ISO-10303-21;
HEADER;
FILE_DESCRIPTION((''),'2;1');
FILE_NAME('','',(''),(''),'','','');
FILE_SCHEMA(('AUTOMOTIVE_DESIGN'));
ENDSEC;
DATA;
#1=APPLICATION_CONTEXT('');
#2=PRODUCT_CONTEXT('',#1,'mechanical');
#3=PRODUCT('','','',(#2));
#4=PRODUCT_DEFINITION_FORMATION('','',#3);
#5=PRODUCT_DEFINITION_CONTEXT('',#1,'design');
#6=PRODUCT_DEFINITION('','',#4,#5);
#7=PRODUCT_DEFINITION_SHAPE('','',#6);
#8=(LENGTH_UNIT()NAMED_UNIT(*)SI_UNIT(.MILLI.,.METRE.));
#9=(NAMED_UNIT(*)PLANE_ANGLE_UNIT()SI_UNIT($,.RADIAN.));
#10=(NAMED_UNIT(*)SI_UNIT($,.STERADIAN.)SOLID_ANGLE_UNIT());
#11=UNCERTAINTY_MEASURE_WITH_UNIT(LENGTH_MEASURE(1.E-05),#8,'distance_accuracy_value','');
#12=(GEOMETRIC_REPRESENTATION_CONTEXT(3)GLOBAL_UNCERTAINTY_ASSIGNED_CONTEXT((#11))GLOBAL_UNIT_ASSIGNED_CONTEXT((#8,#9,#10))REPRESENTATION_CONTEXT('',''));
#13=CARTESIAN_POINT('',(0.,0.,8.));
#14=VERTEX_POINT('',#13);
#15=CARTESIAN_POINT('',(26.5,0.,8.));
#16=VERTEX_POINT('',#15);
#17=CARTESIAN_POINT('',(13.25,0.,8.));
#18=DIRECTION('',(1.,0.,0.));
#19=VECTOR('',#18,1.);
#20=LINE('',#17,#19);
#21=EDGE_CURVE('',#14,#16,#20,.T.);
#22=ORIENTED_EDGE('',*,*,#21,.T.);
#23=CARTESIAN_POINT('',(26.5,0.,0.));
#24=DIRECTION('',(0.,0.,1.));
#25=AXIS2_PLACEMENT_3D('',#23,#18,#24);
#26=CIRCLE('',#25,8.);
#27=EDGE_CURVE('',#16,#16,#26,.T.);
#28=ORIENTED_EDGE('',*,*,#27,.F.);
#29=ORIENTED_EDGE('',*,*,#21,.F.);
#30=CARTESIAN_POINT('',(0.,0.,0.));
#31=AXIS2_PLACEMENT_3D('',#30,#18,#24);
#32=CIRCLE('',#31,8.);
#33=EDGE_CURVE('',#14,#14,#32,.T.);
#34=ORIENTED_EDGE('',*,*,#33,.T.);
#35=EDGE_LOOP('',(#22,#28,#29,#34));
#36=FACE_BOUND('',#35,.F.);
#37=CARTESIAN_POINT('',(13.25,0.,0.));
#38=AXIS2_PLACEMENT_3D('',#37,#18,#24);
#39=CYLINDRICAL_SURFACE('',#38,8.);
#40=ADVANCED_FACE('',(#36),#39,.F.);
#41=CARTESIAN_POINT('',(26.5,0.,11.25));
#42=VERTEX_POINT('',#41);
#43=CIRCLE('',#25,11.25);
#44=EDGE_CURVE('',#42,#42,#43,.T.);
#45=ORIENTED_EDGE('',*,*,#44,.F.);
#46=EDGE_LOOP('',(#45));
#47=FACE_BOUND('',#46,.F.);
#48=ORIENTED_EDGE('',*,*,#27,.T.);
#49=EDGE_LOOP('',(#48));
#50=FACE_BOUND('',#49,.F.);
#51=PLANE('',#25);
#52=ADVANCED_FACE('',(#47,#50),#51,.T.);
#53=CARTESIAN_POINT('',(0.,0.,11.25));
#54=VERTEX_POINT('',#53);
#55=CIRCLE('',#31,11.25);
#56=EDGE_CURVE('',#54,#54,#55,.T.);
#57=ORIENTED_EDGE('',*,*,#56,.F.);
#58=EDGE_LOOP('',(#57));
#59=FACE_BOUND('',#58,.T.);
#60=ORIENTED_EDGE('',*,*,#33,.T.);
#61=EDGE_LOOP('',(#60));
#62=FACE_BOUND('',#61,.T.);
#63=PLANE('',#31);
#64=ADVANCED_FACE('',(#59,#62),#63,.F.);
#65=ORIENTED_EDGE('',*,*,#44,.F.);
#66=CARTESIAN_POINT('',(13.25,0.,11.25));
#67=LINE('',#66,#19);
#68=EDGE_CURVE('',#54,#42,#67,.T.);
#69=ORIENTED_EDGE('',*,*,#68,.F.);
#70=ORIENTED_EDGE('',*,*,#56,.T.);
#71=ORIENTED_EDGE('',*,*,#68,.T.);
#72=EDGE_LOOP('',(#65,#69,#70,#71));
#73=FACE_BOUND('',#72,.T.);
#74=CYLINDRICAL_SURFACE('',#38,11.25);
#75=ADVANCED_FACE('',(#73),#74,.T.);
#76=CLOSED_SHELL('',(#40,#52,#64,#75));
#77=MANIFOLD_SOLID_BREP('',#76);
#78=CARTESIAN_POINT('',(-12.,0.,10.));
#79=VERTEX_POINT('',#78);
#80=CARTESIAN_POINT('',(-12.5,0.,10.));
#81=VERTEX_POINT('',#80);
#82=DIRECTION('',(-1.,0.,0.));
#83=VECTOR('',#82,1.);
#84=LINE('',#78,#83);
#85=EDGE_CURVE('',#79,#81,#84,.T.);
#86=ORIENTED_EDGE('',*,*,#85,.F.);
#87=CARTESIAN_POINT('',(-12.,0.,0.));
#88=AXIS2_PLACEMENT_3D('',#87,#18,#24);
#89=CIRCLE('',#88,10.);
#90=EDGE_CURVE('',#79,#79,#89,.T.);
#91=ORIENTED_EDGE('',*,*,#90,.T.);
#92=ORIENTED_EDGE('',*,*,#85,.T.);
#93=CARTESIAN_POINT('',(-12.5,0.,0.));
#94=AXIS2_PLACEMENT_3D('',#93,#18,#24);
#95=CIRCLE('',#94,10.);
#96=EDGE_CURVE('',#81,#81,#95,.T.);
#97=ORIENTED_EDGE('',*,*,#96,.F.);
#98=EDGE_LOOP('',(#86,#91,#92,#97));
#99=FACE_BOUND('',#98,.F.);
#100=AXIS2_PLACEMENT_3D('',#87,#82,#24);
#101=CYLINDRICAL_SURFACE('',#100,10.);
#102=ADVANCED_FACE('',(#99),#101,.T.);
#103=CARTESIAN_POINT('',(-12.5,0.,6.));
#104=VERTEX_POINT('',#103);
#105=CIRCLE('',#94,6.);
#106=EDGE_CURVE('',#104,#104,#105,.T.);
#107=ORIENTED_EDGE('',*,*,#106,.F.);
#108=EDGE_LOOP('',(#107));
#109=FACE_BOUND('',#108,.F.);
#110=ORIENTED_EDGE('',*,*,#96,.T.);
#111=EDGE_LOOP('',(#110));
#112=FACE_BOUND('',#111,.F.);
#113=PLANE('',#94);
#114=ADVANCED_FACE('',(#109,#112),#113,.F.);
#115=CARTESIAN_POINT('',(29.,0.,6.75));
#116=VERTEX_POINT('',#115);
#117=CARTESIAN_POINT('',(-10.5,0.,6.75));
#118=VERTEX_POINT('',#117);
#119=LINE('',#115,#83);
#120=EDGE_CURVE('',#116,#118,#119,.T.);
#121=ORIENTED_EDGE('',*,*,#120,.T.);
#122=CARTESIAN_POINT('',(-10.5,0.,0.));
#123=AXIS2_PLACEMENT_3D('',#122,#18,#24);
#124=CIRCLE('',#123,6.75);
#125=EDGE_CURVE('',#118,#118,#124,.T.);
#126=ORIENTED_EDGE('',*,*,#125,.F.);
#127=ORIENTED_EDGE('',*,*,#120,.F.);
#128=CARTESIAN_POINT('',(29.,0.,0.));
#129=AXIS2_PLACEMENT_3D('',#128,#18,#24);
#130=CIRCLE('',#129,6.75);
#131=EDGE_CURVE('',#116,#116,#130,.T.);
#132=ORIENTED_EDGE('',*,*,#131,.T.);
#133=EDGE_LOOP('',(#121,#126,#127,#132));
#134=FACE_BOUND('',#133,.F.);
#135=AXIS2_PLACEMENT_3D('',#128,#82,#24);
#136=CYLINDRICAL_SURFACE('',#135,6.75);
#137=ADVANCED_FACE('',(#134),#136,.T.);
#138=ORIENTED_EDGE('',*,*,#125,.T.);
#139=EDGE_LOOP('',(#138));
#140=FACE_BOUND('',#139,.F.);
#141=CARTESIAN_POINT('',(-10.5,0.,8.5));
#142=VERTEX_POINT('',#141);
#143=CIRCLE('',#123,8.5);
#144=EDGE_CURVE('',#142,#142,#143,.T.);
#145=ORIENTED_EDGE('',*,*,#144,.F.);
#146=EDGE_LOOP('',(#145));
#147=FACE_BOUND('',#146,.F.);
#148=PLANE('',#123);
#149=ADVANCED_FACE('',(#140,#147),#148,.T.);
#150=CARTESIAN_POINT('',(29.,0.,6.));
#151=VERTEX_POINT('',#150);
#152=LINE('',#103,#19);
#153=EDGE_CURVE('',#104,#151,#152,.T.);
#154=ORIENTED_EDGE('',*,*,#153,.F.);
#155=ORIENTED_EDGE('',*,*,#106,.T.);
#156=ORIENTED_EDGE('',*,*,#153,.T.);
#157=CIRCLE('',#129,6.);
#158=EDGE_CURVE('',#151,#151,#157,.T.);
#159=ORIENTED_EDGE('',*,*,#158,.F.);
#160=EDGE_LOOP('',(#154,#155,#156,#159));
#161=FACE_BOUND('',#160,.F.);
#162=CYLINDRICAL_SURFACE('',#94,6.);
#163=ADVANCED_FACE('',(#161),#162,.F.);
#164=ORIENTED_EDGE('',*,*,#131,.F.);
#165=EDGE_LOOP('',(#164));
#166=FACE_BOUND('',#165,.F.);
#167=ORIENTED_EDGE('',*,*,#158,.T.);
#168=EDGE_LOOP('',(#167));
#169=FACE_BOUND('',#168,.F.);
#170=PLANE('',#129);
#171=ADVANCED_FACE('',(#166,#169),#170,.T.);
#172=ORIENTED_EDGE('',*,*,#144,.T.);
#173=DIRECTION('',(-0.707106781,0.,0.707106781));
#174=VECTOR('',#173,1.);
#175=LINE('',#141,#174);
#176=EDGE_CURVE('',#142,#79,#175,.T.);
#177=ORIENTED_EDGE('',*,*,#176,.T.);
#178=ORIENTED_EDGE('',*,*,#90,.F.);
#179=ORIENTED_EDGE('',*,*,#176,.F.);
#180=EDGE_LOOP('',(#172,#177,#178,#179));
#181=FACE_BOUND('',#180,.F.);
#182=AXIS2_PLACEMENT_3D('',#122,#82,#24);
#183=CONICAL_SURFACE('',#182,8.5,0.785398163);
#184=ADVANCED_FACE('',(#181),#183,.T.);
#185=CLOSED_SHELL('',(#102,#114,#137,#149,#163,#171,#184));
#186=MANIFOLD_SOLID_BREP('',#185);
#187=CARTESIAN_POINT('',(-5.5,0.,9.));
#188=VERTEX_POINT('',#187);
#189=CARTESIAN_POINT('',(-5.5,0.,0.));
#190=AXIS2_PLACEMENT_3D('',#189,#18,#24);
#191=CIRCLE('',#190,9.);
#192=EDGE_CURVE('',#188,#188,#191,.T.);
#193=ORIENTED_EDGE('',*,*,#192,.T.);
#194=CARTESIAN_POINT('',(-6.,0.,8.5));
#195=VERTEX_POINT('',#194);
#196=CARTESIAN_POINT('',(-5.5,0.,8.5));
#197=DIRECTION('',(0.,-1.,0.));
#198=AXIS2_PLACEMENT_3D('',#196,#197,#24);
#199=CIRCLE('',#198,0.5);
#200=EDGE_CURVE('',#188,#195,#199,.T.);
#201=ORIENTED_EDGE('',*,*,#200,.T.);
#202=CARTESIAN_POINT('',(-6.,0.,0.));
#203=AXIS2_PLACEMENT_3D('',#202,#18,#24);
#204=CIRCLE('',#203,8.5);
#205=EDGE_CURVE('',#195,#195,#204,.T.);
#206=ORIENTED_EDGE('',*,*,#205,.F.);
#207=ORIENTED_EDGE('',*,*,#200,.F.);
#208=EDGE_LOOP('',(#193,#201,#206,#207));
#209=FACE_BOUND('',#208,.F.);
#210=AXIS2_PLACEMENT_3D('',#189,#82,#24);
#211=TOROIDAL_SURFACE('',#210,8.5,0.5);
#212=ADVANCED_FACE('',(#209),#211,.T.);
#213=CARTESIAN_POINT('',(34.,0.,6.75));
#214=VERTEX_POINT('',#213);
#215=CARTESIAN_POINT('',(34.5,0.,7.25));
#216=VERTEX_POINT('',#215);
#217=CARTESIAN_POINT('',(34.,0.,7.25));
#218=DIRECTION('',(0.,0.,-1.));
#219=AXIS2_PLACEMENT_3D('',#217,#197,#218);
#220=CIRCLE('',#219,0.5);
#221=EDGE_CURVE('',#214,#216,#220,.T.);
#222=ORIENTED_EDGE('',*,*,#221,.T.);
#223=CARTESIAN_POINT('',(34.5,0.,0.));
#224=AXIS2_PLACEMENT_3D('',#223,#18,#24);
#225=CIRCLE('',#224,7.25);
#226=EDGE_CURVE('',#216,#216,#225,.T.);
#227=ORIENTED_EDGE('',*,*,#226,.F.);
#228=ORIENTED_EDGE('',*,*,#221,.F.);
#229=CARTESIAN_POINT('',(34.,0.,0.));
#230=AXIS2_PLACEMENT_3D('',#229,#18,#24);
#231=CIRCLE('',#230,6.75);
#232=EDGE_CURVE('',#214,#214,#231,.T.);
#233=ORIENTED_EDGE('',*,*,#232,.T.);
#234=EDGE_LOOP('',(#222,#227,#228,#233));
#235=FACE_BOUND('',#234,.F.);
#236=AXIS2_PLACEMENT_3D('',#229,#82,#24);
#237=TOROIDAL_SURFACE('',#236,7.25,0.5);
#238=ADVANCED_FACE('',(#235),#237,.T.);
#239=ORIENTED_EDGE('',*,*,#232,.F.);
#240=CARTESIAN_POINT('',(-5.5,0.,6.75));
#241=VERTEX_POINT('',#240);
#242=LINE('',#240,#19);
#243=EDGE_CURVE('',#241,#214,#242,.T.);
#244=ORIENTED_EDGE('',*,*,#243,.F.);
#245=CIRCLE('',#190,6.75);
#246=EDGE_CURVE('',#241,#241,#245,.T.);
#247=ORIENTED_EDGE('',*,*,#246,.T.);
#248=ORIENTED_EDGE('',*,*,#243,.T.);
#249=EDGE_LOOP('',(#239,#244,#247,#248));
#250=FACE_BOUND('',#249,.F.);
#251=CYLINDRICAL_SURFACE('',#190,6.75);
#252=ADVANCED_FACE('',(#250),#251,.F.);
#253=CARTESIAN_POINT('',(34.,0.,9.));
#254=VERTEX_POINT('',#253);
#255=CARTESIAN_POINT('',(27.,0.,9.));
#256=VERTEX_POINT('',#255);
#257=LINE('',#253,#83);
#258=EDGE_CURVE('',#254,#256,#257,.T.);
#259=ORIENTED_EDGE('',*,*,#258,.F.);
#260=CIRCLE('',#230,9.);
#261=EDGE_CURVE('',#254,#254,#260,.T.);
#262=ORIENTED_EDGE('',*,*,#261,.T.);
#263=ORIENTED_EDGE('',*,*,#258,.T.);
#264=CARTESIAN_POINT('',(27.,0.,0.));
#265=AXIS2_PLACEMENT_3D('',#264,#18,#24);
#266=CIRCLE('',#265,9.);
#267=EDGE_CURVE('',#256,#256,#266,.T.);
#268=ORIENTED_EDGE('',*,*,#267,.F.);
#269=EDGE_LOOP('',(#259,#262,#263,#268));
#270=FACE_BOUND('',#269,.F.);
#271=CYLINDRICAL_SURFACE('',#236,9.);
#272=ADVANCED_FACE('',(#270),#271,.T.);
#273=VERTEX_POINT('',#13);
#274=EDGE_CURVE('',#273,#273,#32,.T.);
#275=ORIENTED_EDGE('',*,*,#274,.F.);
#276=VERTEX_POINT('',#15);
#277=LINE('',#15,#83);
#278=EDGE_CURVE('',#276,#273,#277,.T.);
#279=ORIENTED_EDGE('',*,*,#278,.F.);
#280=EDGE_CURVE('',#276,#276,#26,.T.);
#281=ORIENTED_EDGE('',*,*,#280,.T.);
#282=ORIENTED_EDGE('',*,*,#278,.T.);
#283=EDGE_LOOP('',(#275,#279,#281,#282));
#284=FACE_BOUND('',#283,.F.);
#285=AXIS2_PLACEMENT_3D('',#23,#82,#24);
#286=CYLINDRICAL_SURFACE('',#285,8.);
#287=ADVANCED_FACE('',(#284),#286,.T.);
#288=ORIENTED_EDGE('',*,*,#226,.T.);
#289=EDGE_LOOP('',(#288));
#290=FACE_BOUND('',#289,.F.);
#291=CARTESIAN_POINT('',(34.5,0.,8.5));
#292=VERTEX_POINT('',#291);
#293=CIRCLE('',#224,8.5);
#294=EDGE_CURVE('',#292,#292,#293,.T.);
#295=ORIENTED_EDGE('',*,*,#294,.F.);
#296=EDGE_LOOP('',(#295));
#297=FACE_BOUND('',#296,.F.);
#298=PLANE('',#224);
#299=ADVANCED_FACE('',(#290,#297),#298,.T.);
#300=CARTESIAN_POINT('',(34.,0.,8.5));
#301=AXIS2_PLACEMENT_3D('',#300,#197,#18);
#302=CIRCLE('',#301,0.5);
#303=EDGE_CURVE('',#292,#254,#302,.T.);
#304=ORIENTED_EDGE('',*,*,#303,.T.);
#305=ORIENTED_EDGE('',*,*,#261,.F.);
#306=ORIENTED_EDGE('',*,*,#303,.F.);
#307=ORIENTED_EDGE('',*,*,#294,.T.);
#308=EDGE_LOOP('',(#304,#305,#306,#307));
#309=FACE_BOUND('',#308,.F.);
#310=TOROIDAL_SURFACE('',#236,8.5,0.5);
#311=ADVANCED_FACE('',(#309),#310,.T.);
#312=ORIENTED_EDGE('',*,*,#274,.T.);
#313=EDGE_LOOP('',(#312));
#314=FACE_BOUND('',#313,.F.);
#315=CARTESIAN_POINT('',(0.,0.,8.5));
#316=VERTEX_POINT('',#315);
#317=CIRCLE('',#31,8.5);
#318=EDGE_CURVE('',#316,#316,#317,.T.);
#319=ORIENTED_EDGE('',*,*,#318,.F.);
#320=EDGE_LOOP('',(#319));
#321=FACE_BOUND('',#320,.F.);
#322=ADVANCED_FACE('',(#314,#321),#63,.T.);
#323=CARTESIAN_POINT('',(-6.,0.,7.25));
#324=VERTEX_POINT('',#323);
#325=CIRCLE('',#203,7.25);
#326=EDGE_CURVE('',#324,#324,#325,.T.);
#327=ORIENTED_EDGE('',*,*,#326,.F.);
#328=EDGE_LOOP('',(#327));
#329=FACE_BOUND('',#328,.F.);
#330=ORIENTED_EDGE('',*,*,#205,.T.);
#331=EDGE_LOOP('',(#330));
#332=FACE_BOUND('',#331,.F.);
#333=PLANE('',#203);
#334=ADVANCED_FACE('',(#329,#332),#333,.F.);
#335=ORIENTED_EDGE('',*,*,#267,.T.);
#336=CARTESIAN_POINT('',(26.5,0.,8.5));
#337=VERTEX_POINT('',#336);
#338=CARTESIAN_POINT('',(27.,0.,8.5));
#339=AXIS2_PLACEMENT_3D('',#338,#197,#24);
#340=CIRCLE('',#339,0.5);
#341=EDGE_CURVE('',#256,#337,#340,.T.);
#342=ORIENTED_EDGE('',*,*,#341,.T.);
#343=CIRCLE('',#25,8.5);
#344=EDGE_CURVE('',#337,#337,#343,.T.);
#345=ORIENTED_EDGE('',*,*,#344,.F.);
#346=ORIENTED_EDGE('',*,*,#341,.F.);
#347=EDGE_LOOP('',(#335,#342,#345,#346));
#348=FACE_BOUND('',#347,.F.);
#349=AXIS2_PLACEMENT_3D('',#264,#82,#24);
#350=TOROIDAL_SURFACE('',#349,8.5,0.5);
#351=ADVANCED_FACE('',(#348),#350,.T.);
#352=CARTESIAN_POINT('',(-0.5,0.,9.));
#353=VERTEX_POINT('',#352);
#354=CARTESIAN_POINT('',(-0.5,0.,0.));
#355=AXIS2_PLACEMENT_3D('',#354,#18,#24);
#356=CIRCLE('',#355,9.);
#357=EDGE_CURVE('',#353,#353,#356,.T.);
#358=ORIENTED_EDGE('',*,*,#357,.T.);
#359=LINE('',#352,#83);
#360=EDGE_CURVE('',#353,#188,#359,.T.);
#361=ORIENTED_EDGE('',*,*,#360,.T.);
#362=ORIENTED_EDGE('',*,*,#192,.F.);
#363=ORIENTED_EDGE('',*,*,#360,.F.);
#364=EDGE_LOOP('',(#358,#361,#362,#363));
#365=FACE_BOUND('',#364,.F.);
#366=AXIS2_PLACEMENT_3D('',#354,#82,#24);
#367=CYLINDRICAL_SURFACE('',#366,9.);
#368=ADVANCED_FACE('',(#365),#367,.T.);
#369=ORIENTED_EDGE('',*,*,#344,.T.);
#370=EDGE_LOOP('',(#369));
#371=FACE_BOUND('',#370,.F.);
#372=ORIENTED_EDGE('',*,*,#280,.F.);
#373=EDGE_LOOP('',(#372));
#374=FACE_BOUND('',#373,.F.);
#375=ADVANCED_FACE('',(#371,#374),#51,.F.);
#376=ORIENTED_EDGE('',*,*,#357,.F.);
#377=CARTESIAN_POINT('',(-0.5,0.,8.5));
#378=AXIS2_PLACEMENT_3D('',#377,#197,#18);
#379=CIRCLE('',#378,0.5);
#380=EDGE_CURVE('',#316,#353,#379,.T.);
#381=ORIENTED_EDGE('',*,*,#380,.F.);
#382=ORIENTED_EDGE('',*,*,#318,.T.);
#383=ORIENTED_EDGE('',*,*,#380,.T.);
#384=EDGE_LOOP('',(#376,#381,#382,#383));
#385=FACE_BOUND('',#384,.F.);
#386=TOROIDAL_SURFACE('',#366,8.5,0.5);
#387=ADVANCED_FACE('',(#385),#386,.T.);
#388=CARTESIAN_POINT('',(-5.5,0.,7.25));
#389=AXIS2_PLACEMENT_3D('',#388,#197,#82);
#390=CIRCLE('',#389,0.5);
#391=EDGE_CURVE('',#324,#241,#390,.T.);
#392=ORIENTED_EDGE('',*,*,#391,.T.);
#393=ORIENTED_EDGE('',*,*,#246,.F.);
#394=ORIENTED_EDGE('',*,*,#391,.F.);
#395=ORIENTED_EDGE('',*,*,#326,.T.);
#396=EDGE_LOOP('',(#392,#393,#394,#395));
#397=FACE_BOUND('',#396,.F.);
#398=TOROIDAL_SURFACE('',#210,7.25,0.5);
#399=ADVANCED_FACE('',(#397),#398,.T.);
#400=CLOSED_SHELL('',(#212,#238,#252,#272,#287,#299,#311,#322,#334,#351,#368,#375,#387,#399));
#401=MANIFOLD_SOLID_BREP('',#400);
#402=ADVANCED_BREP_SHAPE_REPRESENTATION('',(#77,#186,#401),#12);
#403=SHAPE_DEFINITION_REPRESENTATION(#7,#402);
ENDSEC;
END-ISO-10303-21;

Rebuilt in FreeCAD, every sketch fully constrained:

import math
import FreeCAD as App
import Part
import Sketcher
from FreeCAD import Vector
Q = App.Units.Quantity


def add_polygon(sketch, points):
    """Adds a closed chain of lines whose ends are joined by coincident constraints."""
    first, n = sketch.GeometryCount, len(points)
    for a, b in zip(points, points[1:] + points[:1]):
        sketch.addGeometry(Part.LineSegment(App.Vector(*a, 0), App.Vector(*b, 0)), False)
    for i in range(n):
        sketch.addConstraint(Sketcher.Constraint("Coincident", first + i, 2, first + (i + 1) % n, 1))

doc = App.newDocument("Part")
params = doc.addObject("Spreadsheet::Sheet", "Params")
for row, (alias, value) in enumerate([
    ("sketch1_width", "26.5 mm"),
    ("sketch1_height", "3.25 mm"),
    ("revolution_angle", "360 deg"),
    ("sketch2_height", "4 mm"),
    ("sketch2_width", "39.5 mm"),
    ("sketch2_width2", "0.5 mm"),
    ("sketch2_width3", "41.5 mm"),
    ("sketch2_height2", "1.75 mm"),
    ("revolution2_angle", "360 deg"),
    ("sketch3_radius", "0.5 mm"),
    ("sketch3_width", "5 mm"),
    ("sketch3_width2", "7 mm"),
    ("sketch3_width3", "39.5 mm"),
    ("sketch3_height", "0.5 mm"),
    ("revolution3_angle", "360 deg"),
], start=1):
    params.set(f"A{row}", alias)
    params.set(f"B{row}", "=" + value)
    params.setAlias(f"B{row}", alias)

body = doc.addObject("PartDesign::Body", "Body")

# Sketch on XZ plane
sketch1 = body.newObject("Sketcher::SketchObject", "Sketch")
sketch1.AttachmentSupport = (doc.getObject("XZ_Plane"), [""])
sketch1.MapMode = "FlatFace"
add_polygon(sketch1, [(0, 11.2), (0, 8), (26.5, 8), (26.5, 11.2)])  # lines 0-3
sketch1.addConstraint([
    Sketcher.Constraint("Vertical", 0),
    Sketcher.Constraint("Horizontal", 1),
    Sketcher.Constraint("Vertical", 2),
    Sketcher.Constraint("Horizontal", 3),
    Sketcher.Constraint("PointOnObject", 0, 2, -2),
    Sketcher.Constraint("DistanceX", 1, 1, 1, 2, 26.5),
    Sketcher.Constraint("DistanceY", -1, 1, 0, 2, 8.0),
    Sketcher.Constraint("DistanceY", 0, 2, 0, 1, 3.25),
])
sketch1.setExpression("Constraints[9]", "Params.sketch1_width")
sketch1.setExpression("Constraints[11]", "Params.sketch1_height")
revolution = body.newObject("PartDesign::Revolution", "Revolution")
revolution.Profile = sketch1
revolution.ReferenceAxis = (sketch1, ["H_Axis"])
revolution.setExpression("Angle", "Params.revolution_angle")
body2 = doc.addObject("PartDesign::Body", "Body001")

# Sketch on XZ plane
sketch2 = body2.newObject("Sketcher::SketchObject", "Sketch001")
sketch2.AttachmentSupport = (doc.getObject("XZ_Plane001"), [""])
sketch2.MapMode = "FlatFace"
add_polygon(sketch2, [(29, 6.8), (-10.5, 6.8), (-10.5, 8.5), (-12, 10), (-12.5, 10), (-12.5, 6), (29, 6)])  # lines 0-6
sketch2.addConstraint([
    Sketcher.Constraint("Horizontal", 0),
    Sketcher.Constraint("Vertical", 1),
    Sketcher.Constraint("Horizontal", 3),
    Sketcher.Constraint("Vertical", 4),
    Sketcher.Constraint("Horizontal", 5),
    Sketcher.Constraint("Vertical", 6),
    Sketcher.Constraint("DistanceY", 4, 2, 4, 1, 4.0),
    Sketcher.Constraint("Angle", 2, Q("135 deg")),
    Sketcher.Constraint("DistanceX", 0, 2, 0, 1, 39.5),
    Sketcher.Constraint("DistanceX", 3, 2, 3, 1, 0.5),
    Sketcher.Constraint("DistanceX", 5, 1, 5, 2, 41.5),
    Sketcher.Constraint("DistanceX", 2, 2, -1, 1, 12.0),
    Sketcher.Constraint("DistanceY", -1, 1, 2, 2, 10.0),
    Sketcher.Constraint("DistanceY", 1, 1, 1, 2, 1.75),
])
sketch2.setExpression("Constraints[13]", "Params.sketch2_height")
sketch2.setExpression("Constraints[15]", "Params.sketch2_width")
sketch2.setExpression("Constraints[16]", "Params.sketch2_width2")
sketch2.setExpression("Constraints[17]", "Params.sketch2_width3")
sketch2.setExpression("Constraints[20]", "Params.sketch2_height2")
revolution2 = body2.newObject("PartDesign::Revolution", "Revolution001")
revolution2.Profile = sketch2
revolution2.ReferenceAxis = (sketch2, ["H_Axis"])
revolution2.setExpression("Angle", "Params.revolution2_angle")
body3 = doc.addObject("PartDesign::Body", "Body002")

# Sketch on XZ plane
sketch3 = body3.newObject("Sketcher::SketchObject", "Sketch002")
sketch3.AttachmentSupport = (doc.getObject("XZ_Plane002"), [""])
sketch3.MapMode = "FlatFace"
sketch3.addGeometry([
    Part.LineSegment(Vector(-0.5, 9, 0), Vector(-5.5, 9, 0)),  # 0
    Part.ArcOfCircle(Part.Circle(Vector(-5.5, 8.5, 0), Vector(0, 0, 1), 0.5), math.radians(90), math.radians(180)),  # 1
    Part.LineSegment(Vector(-6, 8.5, 0), Vector(-6, 7.2, 0)),  # 2
    Part.ArcOfCircle(Part.Circle(Vector(-5.5, 7.2, 0), Vector(0, 0, 1), 0.5), math.radians(180), math.radians(270)),  # 3
    Part.LineSegment(Vector(-5.5, 6.8, 0), Vector(34, 6.8, 0)),  # 4
    Part.ArcOfCircle(Part.Circle(Vector(34, 7.2, 0), Vector(0, 0, 1), 0.5), math.radians(-90), math.radians(0)),  # 5
    Part.LineSegment(Vector(34.5, 7.2, 0), Vector(34.5, 8.5, 0)),  # 6
    Part.ArcOfCircle(Part.Circle(Vector(34, 8.5, 0), Vector(0, 0, 1), 0.5), math.radians(0), math.radians(90)),  # 7
    Part.LineSegment(Vector(34, 9, 0), Vector(27, 9, 0)),  # 8
    Part.ArcOfCircle(Part.Circle(Vector(27, 8.5, 0), Vector(0, 0, 1), 0.5), math.radians(90), math.radians(180)),  # 9
    Part.LineSegment(Vector(26.5, 8.5, 0), Vector(26.5, 8, 0)),  # 10
    Part.LineSegment(Vector(26.5, 8, 0), Vector(0, 8, 0)),  # 11
    Part.LineSegment(Vector(0, 8, 0), Vector(0, 8.5, 0)),  # 12
    Part.ArcOfCircle(Part.Circle(Vector(-0.5, 8.5, 0), Vector(0, 0, 1), 0.5), math.radians(0), math.radians(90)),  # 13
], False)
sketch3.addConstraint([
    Sketcher.Constraint("Tangent", 0, 2, 1, 1),
    Sketcher.Constraint("Tangent", 1, 2, 2, 1),
    Sketcher.Constraint("Tangent", 2, 2, 3, 1),
    Sketcher.Constraint("Tangent", 3, 2, 4, 1),
    Sketcher.Constraint("Tangent", 4, 2, 5, 1),
    Sketcher.Constraint("Tangent", 5, 2, 6, 1),
    Sketcher.Constraint("Tangent", 6, 2, 7, 1),
    Sketcher.Constraint("Tangent", 7, 2, 8, 1),
    Sketcher.Constraint("Tangent", 8, 2, 9, 1),
    Sketcher.Constraint("Tangent", 9, 2, 10, 1),
    Sketcher.Constraint("Coincident", 10, 2, 11, 1),
    Sketcher.Constraint("Coincident", 11, 2, 12, 1),
    Sketcher.Constraint("Tangent", 12, 2, 13, 1),
    Sketcher.Constraint("Tangent", 13, 2, 0, 1),
    Sketcher.Constraint("Horizontal", 0),
    Sketcher.Constraint("Vertical", 2),
    Sketcher.Constraint("Horizontal", 4),
    Sketcher.Constraint("Vertical", 6),
    Sketcher.Constraint("Horizontal", 8),
    Sketcher.Constraint("Vertical", 10),
    Sketcher.Constraint("Horizontal", 11),
    Sketcher.Constraint("Vertical", 12),
    Sketcher.Constraint("Equal", 1, 3),
    Sketcher.Constraint("Equal", 3, 5),
    Sketcher.Constraint("Equal", 5, 7),
    Sketcher.Constraint("Equal", 7, 9),
    Sketcher.Constraint("Equal", 9, 13),
    Sketcher.Constraint("PointOnObject", 11, 2, -2),
    Sketcher.Constraint("Horizontal", 1, 3, 7, 3),
    Sketcher.Constraint("Radius", 1, 0.5),
    Sketcher.Constraint("DistanceX", 0, 2, 0, 1, 5.0),
    Sketcher.Constraint("DistanceX", 8, 2, 8, 1, 7.0),
    Sketcher.Constraint("DistanceX", 4, 1, 4, 2, 39.5),
    Sketcher.Constraint("DistanceY", 10, 2, 10, 1, 0.5),
    Sketcher.Constraint("DistanceY", -1, 1, 0, 2, 9.0),
    Sketcher.Constraint("DistanceY", 2, 2, 2, 1, 1.25),
])
sketch3.setExpression("Constraints[29]", "Params.sketch3_radius")
sketch3.setExpression("Constraints[30]", "Params.sketch3_width")
sketch3.setExpression("Constraints[31]", "Params.sketch3_width2")
sketch3.setExpression("Constraints[32]", "Params.sketch3_width3")
sketch3.setExpression("Constraints[33]", "Params.sketch3_height")
revolution3 = body3.newObject("PartDesign::Revolution", "Revolution002")
revolution3.Profile = sketch3
revolution3.ReferenceAxis = (sketch3, ["H_Axis"])
revolution3.setExpression("Angle", "Params.revolution3_angle")

doc.recompute()
